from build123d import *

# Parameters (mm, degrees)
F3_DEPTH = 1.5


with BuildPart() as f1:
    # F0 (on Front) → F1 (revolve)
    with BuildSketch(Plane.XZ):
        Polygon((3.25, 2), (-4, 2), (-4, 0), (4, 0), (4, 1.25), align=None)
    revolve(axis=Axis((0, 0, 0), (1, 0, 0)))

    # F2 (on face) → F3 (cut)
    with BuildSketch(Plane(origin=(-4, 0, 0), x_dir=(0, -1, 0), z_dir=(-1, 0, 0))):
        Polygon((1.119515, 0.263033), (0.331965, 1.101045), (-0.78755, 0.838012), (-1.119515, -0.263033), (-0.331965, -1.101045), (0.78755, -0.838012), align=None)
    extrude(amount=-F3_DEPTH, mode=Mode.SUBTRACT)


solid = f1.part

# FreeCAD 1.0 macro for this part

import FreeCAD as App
import Part
import Sketcher

V = App.Vector
Q = App.Units.Quantity


def add_polygon(sketch, points):
    """Adds a closed chain of lines whose ends are joined by coincident constraints."""
    first, n = sketch.GeometryCount, len(points)
    for a, b in zip(points, points[1:] + points[:1]):
        sketch.addGeometry(Part.LineSegment(App.Vector(*a, 0), App.Vector(*b, 0)), False)
    for i in range(n):
        sketch.addConstraint(Sketcher.Constraint("Coincident", first + i, 2, first + (i + 1) % n, 1))

doc = App.newDocument("Part")
body = doc.addObject("PartDesign::Body", "Body")

sketch1 = doc.addObject("Sketcher::SketchObject", "Sketch")
body.addObject(sketch1)
sketch1.AttachmentSupport = (doc.XZ_Plane, [""])
sketch1.MapMode = "FlatFace"
add_polygon(sketch1, [(3.2, 2), (-4, 2), (-4, 0), (4, 0), (4, 1.2)])
sketch1.addConstraint([
    Sketcher.Constraint("Horizontal", 0),
    Sketcher.Constraint("Vertical", 1),
    Sketcher.Constraint("Horizontal", 2),
    Sketcher.Constraint("Vertical", 3),
    Sketcher.Constraint("Symmetric", 1, 2, 2, 2, -1, 1),
    Sketcher.Constraint("DistanceX", 2, 1, 2, 2, 8.0),
    Sketcher.Constraint("DistanceY", 1, 2, 1, 1, 2.0),
    Sketcher.Constraint("Angle", 4, Q("135 deg")),
    Sketcher.Constraint("DistanceX", 0, 2, 0, 1, 7.25),
])
revolution = doc.addObject("PartDesign::Revolution", "Revolution")
body.addObject(revolution)
revolution.Profile = sketch1
revolution.ReferenceAxis = (sketch1, ["H_Axis"])
revolution.Angle = 360

sketch2 = doc.addObject("Sketcher::SketchObject", "Sketch001")
body.addObject(sketch2)
sketch2.AttachmentSupport = (doc.YZ_Plane, [""])
sketch2.MapMode = "FlatFace"
sketch2.AttachmentOffset = App.Placement(V(0, 0, -4), App.Rotation())
add_polygon(sketch2, [(-1.1, 0.3), (-0.3, 1.1), (0.8, 0.8), (1.1, -0.3), (0.3, -1.1), (-0.8, -0.8)])
sketch2.addConstraint([
    Sketcher.Constraint("Symmetric", 0, 2, 3, 2, -1, 1),
    Sketcher.Constraint("Symmetric", 1, 2, 4, 2, -1, 1),
    Sketcher.Constraint("Symmetric", 2, 2, 5, 2, -1, 1),
    Sketcher.Constraint("Equal", 0, 1),
    Sketcher.Constraint("Equal", 1, 2),
    Sketcher.Constraint("Distance", 0, 1.15),
    Sketcher.Constraint("DistanceX", 4, 2, 1, 2, 1.5751),
    Sketcher.Constraint("DistanceY", -1, 1, 1, 2, 0.838012),
    Sketcher.Constraint("DistanceX", 0, 2, 2, 2, 1.45148),
])
pocket1 = doc.addObject("PartDesign::Pocket", "Pocket")
body.addObject(pocket1)
pocket1.Profile = sketch2
pocket1.Length = 1.5
pocket1.Reversed = True

doc.recompute()
